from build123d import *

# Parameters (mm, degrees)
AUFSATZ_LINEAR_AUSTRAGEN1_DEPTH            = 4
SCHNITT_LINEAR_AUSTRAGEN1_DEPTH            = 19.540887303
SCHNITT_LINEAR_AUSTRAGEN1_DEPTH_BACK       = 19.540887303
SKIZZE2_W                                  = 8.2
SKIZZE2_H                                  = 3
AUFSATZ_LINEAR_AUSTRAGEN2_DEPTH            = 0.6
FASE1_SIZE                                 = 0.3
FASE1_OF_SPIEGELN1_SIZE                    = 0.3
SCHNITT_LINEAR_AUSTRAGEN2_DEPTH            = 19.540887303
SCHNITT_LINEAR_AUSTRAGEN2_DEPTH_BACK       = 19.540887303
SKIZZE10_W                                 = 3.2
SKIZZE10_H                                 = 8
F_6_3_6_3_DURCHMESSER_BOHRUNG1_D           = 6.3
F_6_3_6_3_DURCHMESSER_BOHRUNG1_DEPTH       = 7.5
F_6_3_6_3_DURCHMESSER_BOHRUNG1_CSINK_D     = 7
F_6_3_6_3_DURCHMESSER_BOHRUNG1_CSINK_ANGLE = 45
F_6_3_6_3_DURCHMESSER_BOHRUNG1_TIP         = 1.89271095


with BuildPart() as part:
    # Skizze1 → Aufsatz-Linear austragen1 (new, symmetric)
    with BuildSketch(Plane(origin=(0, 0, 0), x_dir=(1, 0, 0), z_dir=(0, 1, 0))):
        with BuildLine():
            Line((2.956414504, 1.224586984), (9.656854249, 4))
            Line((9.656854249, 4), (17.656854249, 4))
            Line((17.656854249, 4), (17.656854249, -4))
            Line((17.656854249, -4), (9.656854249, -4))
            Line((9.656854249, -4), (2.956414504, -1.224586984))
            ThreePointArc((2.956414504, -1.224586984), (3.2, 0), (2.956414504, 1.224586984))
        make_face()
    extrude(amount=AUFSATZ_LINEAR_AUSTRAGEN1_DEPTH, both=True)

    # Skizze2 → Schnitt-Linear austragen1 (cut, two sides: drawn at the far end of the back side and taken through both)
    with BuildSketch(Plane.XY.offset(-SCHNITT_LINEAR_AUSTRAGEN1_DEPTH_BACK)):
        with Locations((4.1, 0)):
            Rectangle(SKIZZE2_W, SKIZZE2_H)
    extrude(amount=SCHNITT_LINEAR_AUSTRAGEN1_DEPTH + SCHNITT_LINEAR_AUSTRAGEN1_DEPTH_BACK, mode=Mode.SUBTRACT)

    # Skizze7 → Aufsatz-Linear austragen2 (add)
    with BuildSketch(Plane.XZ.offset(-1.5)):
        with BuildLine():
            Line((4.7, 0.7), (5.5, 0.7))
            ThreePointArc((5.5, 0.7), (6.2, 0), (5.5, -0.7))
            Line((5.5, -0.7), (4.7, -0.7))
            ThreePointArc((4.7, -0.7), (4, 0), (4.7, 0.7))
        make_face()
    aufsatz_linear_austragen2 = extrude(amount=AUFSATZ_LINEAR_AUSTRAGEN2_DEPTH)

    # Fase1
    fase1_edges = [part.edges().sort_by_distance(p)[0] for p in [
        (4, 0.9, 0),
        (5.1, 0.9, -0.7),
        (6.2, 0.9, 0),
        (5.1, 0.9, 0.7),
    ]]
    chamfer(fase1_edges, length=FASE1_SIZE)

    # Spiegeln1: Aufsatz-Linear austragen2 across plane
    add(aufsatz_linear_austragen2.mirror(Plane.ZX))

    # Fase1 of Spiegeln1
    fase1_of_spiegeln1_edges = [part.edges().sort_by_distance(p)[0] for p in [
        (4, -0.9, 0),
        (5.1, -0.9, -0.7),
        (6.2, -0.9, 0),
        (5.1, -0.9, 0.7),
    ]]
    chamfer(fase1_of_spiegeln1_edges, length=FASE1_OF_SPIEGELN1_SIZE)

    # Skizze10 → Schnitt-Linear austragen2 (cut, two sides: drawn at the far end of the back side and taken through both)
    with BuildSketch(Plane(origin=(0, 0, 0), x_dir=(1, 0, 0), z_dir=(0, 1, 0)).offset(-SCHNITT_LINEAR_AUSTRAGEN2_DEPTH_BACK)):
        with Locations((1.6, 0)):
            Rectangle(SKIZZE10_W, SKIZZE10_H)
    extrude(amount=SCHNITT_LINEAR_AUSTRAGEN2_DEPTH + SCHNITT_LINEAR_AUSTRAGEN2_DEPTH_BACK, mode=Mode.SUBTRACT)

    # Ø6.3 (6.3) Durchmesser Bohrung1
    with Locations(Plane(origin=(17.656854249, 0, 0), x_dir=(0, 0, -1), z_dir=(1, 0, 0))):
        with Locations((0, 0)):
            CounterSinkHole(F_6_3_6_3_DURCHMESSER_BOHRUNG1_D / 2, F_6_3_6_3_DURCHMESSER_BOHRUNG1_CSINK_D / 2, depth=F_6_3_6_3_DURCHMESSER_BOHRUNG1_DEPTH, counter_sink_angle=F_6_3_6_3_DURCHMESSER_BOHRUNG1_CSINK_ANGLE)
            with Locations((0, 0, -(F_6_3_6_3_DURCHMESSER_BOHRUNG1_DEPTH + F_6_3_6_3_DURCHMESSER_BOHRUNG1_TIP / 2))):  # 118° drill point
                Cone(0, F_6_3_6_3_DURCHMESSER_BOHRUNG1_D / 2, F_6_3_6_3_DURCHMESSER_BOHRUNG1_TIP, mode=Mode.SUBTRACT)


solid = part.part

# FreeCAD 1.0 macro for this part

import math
import FreeCAD as App
import Part
import Sketcher
Q = App.Units.Quantity


def edges_at(feature, points):
    """Names of the edges that pass closest to the given points."""
    edges = feature.Shape.Edges
    near = lambda p: min(range(len(edges)), key=lambda i: edges[i].distToShape(Part.Vertex(*p))[0])
    return sorted({f"Edge{near(p) + 1}" for p in points})

doc = App.newDocument("Part")
body = doc.addObject("PartDesign::Body", "Body")

# Sketch on XZ plane
sketch1 = body.newObject("Sketcher::SketchObject", "Sketch")
sketch1.AttachmentSupport = (doc.getObject("XZ_Plane"), [""])
sketch1.MapMode = "FlatFace"
sketch1.addGeometry([
    Part.LineSegment(App.Vector(9.7, -4, 0), App.Vector(3, -1.2, 0)),  # 0
    Part.ArcOfCircle(Part.Circle(App.Vector(0, 0, 0), App.Vector(0, 0, 1), 3.2), math.radians(-22), math.radians(22)),  # 1
    Part.LineSegment(App.Vector(3, 1.2, 0), App.Vector(9.7, 4, 0)),  # 2
    Part.LineSegment(App.Vector(9.7, 4, 0), App.Vector(17.7, 4, 0)),  # 3
    Part.LineSegment(App.Vector(17.7, 4, 0), App.Vector(17.7, -4, 0)),  # 4
    Part.LineSegment(App.Vector(17.7, -4, 0), App.Vector(9.7, -4, 0)),  # 5
], False)
sketch1.addConstraint([
    Sketcher.Constraint("Coincident", 0, 2, 1, 1),
    Sketcher.Constraint("Coincident", 1, 2, 2, 1),
    Sketcher.Constraint("Coincident", 2, 2, 3, 1),
    Sketcher.Constraint("Coincident", 3, 2, 4, 1),
    Sketcher.Constraint("Coincident", 4, 2, 5, 1),
    Sketcher.Constraint("Coincident", 5, 2, 0, 1),
    Sketcher.Constraint("Horizontal", 3),
    Sketcher.Constraint("Vertical", 4),
    Sketcher.Constraint("Horizontal", 5),
    Sketcher.Constraint("Coincident", 1, 3, -1, 1),
    Sketcher.Constraint("Symmetric", 2, 2, 5, 2, -1),
    Sketcher.Constraint("Vertical", 0, 2, 1, 2),
    Sketcher.Constraint("Equal", 5, 4),
    Sketcher.Constraint("Radius", 1, Q("3.2 mm")),
    Sketcher.Constraint("DistanceX", 3, 1, 3, 2, Q("8 mm")),
    Sketcher.Constraint("Angle", 0, Q("157.5 deg")),
    Sketcher.Constraint("DistanceX", 1, 2, 2, 2, Q("6.70044 mm")),
])
pad1 = body.newObject("PartDesign::Pad", "Pad")
pad1.Profile = sketch1
pad1.Length = 8
pad1.Midplane = True

# Sketch on XY plane
sketch2 = body.newObject("Sketcher::SketchObject", "Sketch001")
sketch2.AttachmentSupport = (doc.getObject("XY_Plane"), [""])
sketch2.MapMode = "FlatFace"
sketch2.addGeometry([
    Part.LineSegment(App.Vector(0, 1.5, 0), App.Vector(0, -1.5, 0)),
    Part.LineSegment(App.Vector(0, -1.5, 0), App.Vector(8.2, -1.5, 0)),
    Part.LineSegment(App.Vector(8.2, -1.5, 0), App.Vector(8.2, 1.5, 0)),
    Part.LineSegment(App.Vector(8.2, 1.5, 0), App.Vector(0, 1.5, 0)),
], False)
sketch2.addConstraint([
    Sketcher.Constraint("Coincident", 0, 2, 1, 1),
    Sketcher.Constraint("Coincident", 1, 2, 2, 1),
    Sketcher.Constraint("Coincident", 2, 2, 3, 1),
    Sketcher.Constraint("Coincident", 3, 2, 0, 1),
    Sketcher.Constraint("Vertical", 0),
    Sketcher.Constraint("Horizontal", 1),
    Sketcher.Constraint("Vertical", 2),
    Sketcher.Constraint("Horizontal", 3),
    Sketcher.Constraint("Symmetric", 0, 2, 3, 2, -1, 1),
    Sketcher.Constraint("DistanceY", 0, 2, 0, 1, Q("3 mm")),
    Sketcher.Constraint("DistanceX", 1, 1, 1, 2, Q("8.2 mm")),
])
pocket1 = body.newObject("PartDesign::Pocket", "Pocket")
pocket1.Profile = sketch2
pocket1.Type = "ThroughAll"
pocket1.Midplane = True

# Sketch on XZ plane
sketch3 = body.newObject("Sketcher::SketchObject", "Sketch002")
sketch3.AttachmentSupport = (doc.getObject("XZ_Plane"), [""])
sketch3.MapMode = "FlatFace"
sketch3.AttachmentOffset = App.Placement(App.Vector(0, 0, -1.5), App.Rotation())
sketch3.addGeometry([
    Part.LineSegment(App.Vector(5.5, 0.7, 0), App.Vector(4.7, 0.7, 0)),
    Part.ArcOfCircle(Part.Circle(App.Vector(4.7, 0, 0), App.Vector(0, 0, 1), 0.7), math.radians(90), math.radians(270)),
    Part.LineSegment(App.Vector(4.7, -0.7, 0), App.Vector(5.5, -0.7, 0)),
    Part.ArcOfCircle(Part.Circle(App.Vector(5.5, 0, 0), App.Vector(0, 0, 1), 0.7), math.radians(-90), math.radians(90)),
], False)
sketch3.addConstraint([
    Sketcher.Constraint("Tangent", 0, 2, 1, 1),
    Sketcher.Constraint("Tangent", 1, 2, 2, 1),
    Sketcher.Constraint("Tangent", 2, 2, 3, 1),
    Sketcher.Constraint("Tangent", 3, 2, 0, 1),
    Sketcher.Constraint("Horizontal", 0),
    Sketcher.Constraint("Horizontal", 2),
    Sketcher.Constraint("PointOnObject", 1, 3, -1),
    Sketcher.Constraint("Radius", 1, Q("0.7 mm")),
    Sketcher.Constraint("DistanceX", 0, 2, 0, 1, Q("0.8 mm")),
    Sketcher.Constraint("DistanceX", -1, 1, 1, 3, Q("4.7 mm")),
])
pad2 = body.newObject("PartDesign::Pad", "Pad001")
pad2.Profile = sketch3
pad2.Length = 0.6
doc.recompute()

chamfer = body.newObject("PartDesign::Chamfer", "Chamfer")
chamfer.Base = (pad2, edges_at(pad2, [
    (4, 0.9, 0),
    (5.1, 0.9, -0.7),
    (6.2, 0.9, 0),
    (5.1, 0.9, 0.7),
]))
chamfer.Size = 0.3
doc.recompute()

mirrored = body.newObject("PartDesign::Mirrored", "Mirrored")
mirrored.Originals = [pad2]
mirrored.MirrorPlane = (doc.getObject("XZ_Plane"), [""])
body.Tip = mirrored
doc.recompute()

chamfer2 = body.newObject("PartDesign::Chamfer", "Chamfer001")
chamfer2.Base = (mirrored, edges_at(mirrored, [
    (4, -0.9, 0),
    (5.1, -0.9, -0.7),
    (6.2, -0.9, 0),
    (5.1, -0.9, 0.7),
]))
chamfer2.Size = 0.3

# Sketch on XZ plane
sketch4 = body.newObject("Sketcher::SketchObject", "Sketch003")
sketch4.AttachmentSupport = (doc.getObject("XZ_Plane"), [""])
sketch4.MapMode = "FlatFace"
sketch4.addGeometry([
    Part.LineSegment(App.Vector(0, -4, 0), App.Vector(0, 4, 0)),
    Part.LineSegment(App.Vector(0, 4, 0), App.Vector(3.2, 4, 0)),
    Part.LineSegment(App.Vector(3.2, 4, 0), App.Vector(3.2, -4, 0)),
    Part.LineSegment(App.Vector(3.2, -4, 0), App.Vector(0, -4, 0)),
], False)
sketch4.addConstraint([
    Sketcher.Constraint("Coincident", 0, 2, 1, 1),
    Sketcher.Constraint("Coincident", 1, 2, 2, 1),
    Sketcher.Constraint("Coincident", 2, 2, 3, 1),
    Sketcher.Constraint("Coincident", 3, 2, 0, 1),
    Sketcher.Constraint("Vertical", 0),
    Sketcher.Constraint("Horizontal", 1),
    Sketcher.Constraint("Vertical", 2),
    Sketcher.Constraint("Horizontal", 3),
    Sketcher.Constraint("Symmetric", 0, 2, 3, 2, -1, 1),
    Sketcher.Constraint("DistanceY", 0, 1, 0, 2, Q("8 mm")),
    Sketcher.Constraint("DistanceX", 1, 1, 1, 2, Q("3.2 mm")),
])
pocket2 = body.newObject("PartDesign::Pocket", "Pocket001")
pocket2.Profile = sketch4
pocket2.Type = "ThroughAll"
pocket2.Midplane = True

# Sketch on YZ plane
sketch5 = body.newObject("Sketcher::SketchObject", "Sketch004")
sketch5.AttachmentSupport = (doc.getObject("YZ_Plane"), [""])
sketch5.MapMode = "FlatFace"
sketch5.AttachmentOffset = App.Placement(App.Vector(0, 0, 17.656854), App.Rotation())
sketch5.addGeometry(Part.Circle(App.Vector(0, 0, 0), App.Vector(0, 0, 1), 3.1), False)
sketch5.addConstraint([
    Sketcher.Constraint("Coincident", 0, 3, -1, 1),
    Sketcher.Constraint("Diameter", 0, Q("6.3 mm")),
])
doc.recompute()
hole = body.newObject("PartDesign::Hole", "Hole")
hole.Profile = sketch5
hole.ThreadType = "None"
hole.Diameter = 6.3
hole.DepthType = "Dimension"
hole.Depth = 7.5
hole.DrillPoint = "Angled"
hole.DrillPointAngle = 118
hole.HoleCutType = "Countersink"
hole.HoleCutDiameter = 7
hole.HoleCutCountersinkAngle = 45

doc.recompute()
